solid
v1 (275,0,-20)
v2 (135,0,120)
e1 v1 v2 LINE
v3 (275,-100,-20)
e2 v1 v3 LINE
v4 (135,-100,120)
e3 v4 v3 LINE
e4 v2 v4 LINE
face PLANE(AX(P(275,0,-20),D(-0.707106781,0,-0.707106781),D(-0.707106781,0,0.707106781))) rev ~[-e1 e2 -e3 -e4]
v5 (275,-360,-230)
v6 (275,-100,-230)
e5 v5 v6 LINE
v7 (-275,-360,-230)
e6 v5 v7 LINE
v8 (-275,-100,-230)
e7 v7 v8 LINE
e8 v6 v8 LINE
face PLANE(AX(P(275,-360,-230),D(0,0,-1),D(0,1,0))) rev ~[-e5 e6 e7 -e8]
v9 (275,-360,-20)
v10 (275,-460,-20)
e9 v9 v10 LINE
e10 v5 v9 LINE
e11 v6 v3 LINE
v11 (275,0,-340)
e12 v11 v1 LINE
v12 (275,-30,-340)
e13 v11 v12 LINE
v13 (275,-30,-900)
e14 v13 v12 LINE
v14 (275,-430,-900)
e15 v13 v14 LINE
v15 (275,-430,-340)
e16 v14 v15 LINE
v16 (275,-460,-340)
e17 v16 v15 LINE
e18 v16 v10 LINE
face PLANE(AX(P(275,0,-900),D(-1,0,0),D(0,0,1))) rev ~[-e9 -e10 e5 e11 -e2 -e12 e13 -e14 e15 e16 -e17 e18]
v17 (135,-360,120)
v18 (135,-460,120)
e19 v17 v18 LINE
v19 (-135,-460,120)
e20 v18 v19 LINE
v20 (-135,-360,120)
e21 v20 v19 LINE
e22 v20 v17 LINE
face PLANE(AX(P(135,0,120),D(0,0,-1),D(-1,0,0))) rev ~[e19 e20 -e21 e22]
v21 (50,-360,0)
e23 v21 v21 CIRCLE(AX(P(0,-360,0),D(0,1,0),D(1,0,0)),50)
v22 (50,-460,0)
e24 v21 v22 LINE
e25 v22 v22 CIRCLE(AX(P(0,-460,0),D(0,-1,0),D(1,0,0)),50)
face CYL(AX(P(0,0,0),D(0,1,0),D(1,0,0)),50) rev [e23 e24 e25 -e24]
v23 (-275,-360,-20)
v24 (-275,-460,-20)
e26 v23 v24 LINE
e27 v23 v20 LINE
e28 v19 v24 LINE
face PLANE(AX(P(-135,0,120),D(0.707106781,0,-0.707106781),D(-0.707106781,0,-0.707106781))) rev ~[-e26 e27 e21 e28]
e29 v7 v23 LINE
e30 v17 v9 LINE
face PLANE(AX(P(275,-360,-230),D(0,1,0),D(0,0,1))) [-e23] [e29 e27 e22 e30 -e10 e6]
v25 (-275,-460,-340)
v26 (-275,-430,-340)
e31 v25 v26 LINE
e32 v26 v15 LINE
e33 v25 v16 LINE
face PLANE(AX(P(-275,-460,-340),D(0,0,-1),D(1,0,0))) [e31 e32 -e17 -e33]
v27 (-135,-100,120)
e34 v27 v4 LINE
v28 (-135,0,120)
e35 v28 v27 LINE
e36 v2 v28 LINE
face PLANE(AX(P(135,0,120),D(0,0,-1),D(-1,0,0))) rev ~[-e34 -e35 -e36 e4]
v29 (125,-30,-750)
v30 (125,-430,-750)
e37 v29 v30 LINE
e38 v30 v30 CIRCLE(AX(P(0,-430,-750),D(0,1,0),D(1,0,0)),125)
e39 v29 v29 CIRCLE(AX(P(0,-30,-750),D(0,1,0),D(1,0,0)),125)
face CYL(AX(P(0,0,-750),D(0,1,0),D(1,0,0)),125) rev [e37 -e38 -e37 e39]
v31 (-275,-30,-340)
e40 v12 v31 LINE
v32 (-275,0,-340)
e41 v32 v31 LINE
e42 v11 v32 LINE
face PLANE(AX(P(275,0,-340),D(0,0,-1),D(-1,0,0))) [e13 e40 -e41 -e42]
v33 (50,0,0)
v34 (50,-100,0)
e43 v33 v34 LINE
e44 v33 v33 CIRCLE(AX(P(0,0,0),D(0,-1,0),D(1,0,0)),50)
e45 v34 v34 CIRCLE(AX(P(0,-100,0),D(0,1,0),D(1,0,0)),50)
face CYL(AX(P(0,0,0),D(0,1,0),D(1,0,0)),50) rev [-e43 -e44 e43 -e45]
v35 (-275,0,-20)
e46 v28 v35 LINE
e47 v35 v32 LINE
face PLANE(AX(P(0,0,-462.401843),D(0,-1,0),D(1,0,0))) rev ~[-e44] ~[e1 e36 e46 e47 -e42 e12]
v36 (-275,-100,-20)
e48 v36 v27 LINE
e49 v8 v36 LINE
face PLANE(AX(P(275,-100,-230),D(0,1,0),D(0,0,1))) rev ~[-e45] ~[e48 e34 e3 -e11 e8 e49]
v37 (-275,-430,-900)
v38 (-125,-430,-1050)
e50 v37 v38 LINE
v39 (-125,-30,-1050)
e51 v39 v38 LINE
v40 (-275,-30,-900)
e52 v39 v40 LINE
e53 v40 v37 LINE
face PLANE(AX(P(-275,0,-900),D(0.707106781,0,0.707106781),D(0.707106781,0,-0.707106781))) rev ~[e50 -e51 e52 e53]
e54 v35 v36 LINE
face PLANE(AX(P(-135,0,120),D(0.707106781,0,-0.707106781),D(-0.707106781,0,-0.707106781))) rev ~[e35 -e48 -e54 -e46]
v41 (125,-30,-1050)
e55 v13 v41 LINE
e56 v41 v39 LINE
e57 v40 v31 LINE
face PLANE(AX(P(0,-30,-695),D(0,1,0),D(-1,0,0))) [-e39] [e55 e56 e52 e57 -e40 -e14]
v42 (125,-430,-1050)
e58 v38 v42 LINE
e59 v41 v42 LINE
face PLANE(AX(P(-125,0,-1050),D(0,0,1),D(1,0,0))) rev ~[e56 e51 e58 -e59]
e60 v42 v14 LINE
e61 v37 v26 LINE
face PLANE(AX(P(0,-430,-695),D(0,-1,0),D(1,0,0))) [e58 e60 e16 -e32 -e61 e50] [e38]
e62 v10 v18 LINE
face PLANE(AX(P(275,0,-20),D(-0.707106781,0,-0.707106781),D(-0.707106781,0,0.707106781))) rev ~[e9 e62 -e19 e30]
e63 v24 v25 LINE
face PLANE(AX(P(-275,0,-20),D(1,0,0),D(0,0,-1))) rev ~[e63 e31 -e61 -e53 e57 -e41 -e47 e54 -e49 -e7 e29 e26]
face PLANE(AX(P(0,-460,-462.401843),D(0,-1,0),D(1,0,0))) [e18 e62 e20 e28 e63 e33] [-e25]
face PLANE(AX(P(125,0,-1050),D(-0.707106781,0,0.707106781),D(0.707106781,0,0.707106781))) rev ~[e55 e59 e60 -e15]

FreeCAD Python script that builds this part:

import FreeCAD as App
import Part
import Sketcher
Q = App.Units.Quantity


def add_polygon(sketch, points):
    """Adds a closed chain of lines whose ends are joined by coincident constraints."""
    first, n = sketch.GeometryCount, len(points)
    for a, b in zip(points, points[1:] + points[:1]):
        sketch.addGeometry(Part.LineSegment(App.Vector(*a, 0), App.Vector(*b, 0)), False)
    for i in range(n):
        sketch.addConstraint(Sketcher.Constraint("Coincident", first + i, 2, first + (i + 1) % n, 1))

doc = App.newDocument("Part")
params = doc.addObject("Spreadsheet::Sheet", "Params")
for row, (alias, value) in enumerate([
    ("sketch1_diameter", "250 mm"),
    ("sketch1_diameter2", "100 mm"),
    ("sketch1_width", "270 mm"),
    ("sketch1_width2", "250 mm"),
    ("sketch1_height", "880 mm"),
    ("pad1_length", "460 mm"),
    ("sketch2_width", "260 mm"),
    ("sketch2_height", "420 mm"),
    ("sketch3_width", "550 mm"),
    ("sketch3_height", "710 mm"),
    ("pocket2_length", "30 mm"),
    ("sketch4_width", "550 mm"),
    ("sketch4_height", "710 mm"),
    ("pocket3_length", "30 mm"),
], start=1):
    params.set(f"A{row}", alias)
    params.set(f"B{row}", "=" + value)
    params.setAlias(f"B{row}", alias)

body = doc.addObject("PartDesign::Body", "Body")

# Sketch on XZ plane
sketch1 = body.newObject("Sketcher::SketchObject", "Sketch")
sketch1.AttachmentSupport = (doc.getObject("XZ_Plane"), [""])
sketch1.MapMode = "FlatFace"
add_polygon(sketch1, [(135, 120), (-135, 120), (-275, -20), (-275, -900), (-125, -1050), (125, -1050), (275, -900), (275, -20)])  # lines 0-7
sketch1.addGeometry(Part.Circle(App.Vector(0, -750, 0), App.Vector(0, 0, 1), 125), False)  # 8
sketch1.addGeometry(Part.Circle(App.Vector(0, 0, 0), App.Vector(0, 0, 1), 50), False)  # 9
sketch1.addConstraint(Sketcher.Constraint("Horizontal", 0))
sketch1.addConstraint(Sketcher.Constraint("Vertical", 2))
sketch1.addConstraint(Sketcher.Constraint("Horizontal", 4))
sketch1.addConstraint(Sketcher.Constraint("Vertical", 6))
sketch1.addConstraint(Sketcher.Constraint("Coincident", 9, 3, -1, 1))
sketch1.addConstraint(Sketcher.Constraint("Symmetric", 2, 2, 5, 2, -2))
sketch1.addConstraint(Sketcher.Constraint("PointOnObject", 8, 3, -2))
sketch1.addConstraint(Sketcher.Constraint("Perpendicular", 1, 3))
sketch1.addConstraint(Sketcher.Constraint("Perpendicular", 3, 5))
sketch1.addConstraint(Sketcher.Constraint("Perpendicular", 5, 7))
sketch1.addConstraint(Sketcher.Constraint("Horizontal", 1, 2, 6, 2))
sketch1.addConstraint(Sketcher.Constraint("Equal", 3, 5))
sketch1.addConstraint(Sketcher.Constraint("Diameter", 8, Q("250 mm")))
sketch1.addConstraint(Sketcher.Constraint("Diameter", 9, Q("100 mm")))
sketch1.addConstraint(Sketcher.Constraint("DistanceX", 0, 2, 0, 1, Q("270 mm")))
sketch1.addConstraint(Sketcher.Constraint("DistanceX", 4, 1, 4, 2, Q("250 mm")))
sketch1.addConstraint(Sketcher.Constraint("DistanceY", 2, 2, 2, 1, Q("880 mm")))
sketch1.addConstraint(Sketcher.Constraint("DistanceY", 8, 3, -1, 1, Q("750 mm")))
sketch1.addConstraint(Sketcher.Constraint("DistanceY", -1, 1, 0, 2, Q("120 mm")))
sketch1.addConstraint(Sketcher.Constraint("DistanceX", 1, 2, -1, 1, Q("275 mm")))
sketch1.setExpression("Constraints[20]", "Params.sketch1_diameter")
sketch1.setExpression("Constraints[21]", "Params.sketch1_diameter2")
sketch1.setExpression("Constraints[22]", "Params.sketch1_width")
sketch1.setExpression("Constraints[23]", "Params.sketch1_width2")
sketch1.setExpression("Constraints[24]", "Params.sketch1_height")
pad1 = body.newObject("PartDesign::Pad", "Pad")
pad1.Profile = sketch1
pad1.setExpression("Length", "Params.pad1_length")

# Sketch on YZ plane
sketch2 = body.newObject("Sketcher::SketchObject", "Sketch001")
sketch2.AttachmentSupport = (doc.getObject("YZ_Plane"), [""])
sketch2.MapMode = "FlatFace"
sketch2.AttachmentOffset = App.Placement(App.Vector(0, 0, 275), App.Rotation())
add_polygon(sketch2, [(-360, 190), (-360, -230), (-100, -230), (-100, 190)])  # lines 0-3
sketch2.addConstraint(Sketcher.Constraint("Vertical", 0))
sketch2.addConstraint(Sketcher.Constraint("Horizontal", 1))
sketch2.addConstraint(Sketcher.Constraint("Vertical", 2))
sketch2.addConstraint(Sketcher.Constraint("Horizontal", 3))
sketch2.addConstraint(Sketcher.Constraint("DistanceX", 1, 1, 1, 2, Q("260 mm")))
sketch2.addConstraint(Sketcher.Constraint("DistanceY", 0, 2, 0, 1, Q("420 mm")))
sketch2.addConstraint(Sketcher.Constraint("DistanceX", 0, 2, -1, 1, Q("360 mm")))
sketch2.addConstraint(Sketcher.Constraint("DistanceY", 0, 2, -1, 1, Q("230 mm")))
sketch2.setExpression("Constraints[8]", "Params.sketch2_width")
sketch2.setExpression("Constraints[9]", "Params.sketch2_height")
pocket1 = body.newObject("PartDesign::Pocket", "Pocket")
pocket1.Profile = sketch2
pocket1.Type = "ThroughAll"

# Sketch on XZ plane
sketch3 = body.newObject("Sketcher::SketchObject", "Sketch002")
sketch3.AttachmentSupport = (doc.getObject("XZ_Plane"), [""])
sketch3.MapMode = "FlatFace"
add_polygon(sketch3, [(275, -340), (275, -1050), (-275, -1050), (-275, -340)])  # lines 0-3
sketch3.addConstraint(Sketcher.Constraint("Vertical", 0))
sketch3.addConstraint(Sketcher.Constraint("Horizontal", 1))
sketch3.addConstraint(Sketcher.Constraint("Vertical", 2))
sketch3.addConstraint(Sketcher.Constraint("Horizontal", 3))
sketch3.addConstraint(Sketcher.Constraint("DistanceX", 1, 2, 1, 1, Q("550 mm")))
sketch3.addConstraint(Sketcher.Constraint("DistanceY", 0, 2, 0, 1, Q("710 mm")))
sketch3.addConstraint(Sketcher.Constraint("DistanceX", -1, 1, 0, 2, Q("275 mm")))
sketch3.addConstraint(Sketcher.Constraint("DistanceY", 0, 2, -1, 1, Q("1050 mm")))
sketch3.setExpression("Constraints[8]", "Params.sketch3_width")
sketch3.setExpression("Constraints[9]", "Params.sketch3_height")
pocket2 = body.newObject("PartDesign::Pocket", "Pocket001")
pocket2.Profile = sketch3
pocket2.setExpression("Length", "Params.pocket2_length")
pocket2.Reversed = True

# Sketch on XZ plane
sketch4 = body.newObject("Sketcher::SketchObject", "Sketch003")
sketch4.AttachmentSupport = (doc.getObject("XZ_Plane"), [""])
sketch4.MapMode = "FlatFace"
sketch4.AttachmentOffset = App.Placement(App.Vector(0, 0, 460), App.Rotation())
add_polygon(sketch4, [(-275, -340), (-275, -1050), (275, -1050), (275, -340)])  # lines 0-3
sketch4.addConstraint(Sketcher.Constraint("Vertical", 0))
sketch4.addConstraint(Sketcher.Constraint("Horizontal", 1))
sketch4.addConstraint(Sketcher.Constraint("Vertical", 2))
sketch4.addConstraint(Sketcher.Constraint("Horizontal", 3))
sketch4.addConstraint(Sketcher.Constraint("DistanceX", 1, 1, 1, 2, Q("550 mm")))
sketch4.addConstraint(Sketcher.Constraint("DistanceY", 0, 2, 0, 1, Q("710 mm")))
sketch4.addConstraint(Sketcher.Constraint("DistanceX", 0, 2, -1, 1, Q("275 mm")))
sketch4.addConstraint(Sketcher.Constraint("DistanceY", 0, 2, -1, 1, Q("1050 mm")))
sketch4.setExpression("Constraints[8]", "Params.sketch4_width")
sketch4.setExpression("Constraints[9]", "Params.sketch4_height")
pocket3 = body.newObject("PartDesign::Pocket", "Pocket002")
pocket3.Profile = sketch4
pocket3.setExpression("Length", "Params.pocket3_length")

doc.recompute()
